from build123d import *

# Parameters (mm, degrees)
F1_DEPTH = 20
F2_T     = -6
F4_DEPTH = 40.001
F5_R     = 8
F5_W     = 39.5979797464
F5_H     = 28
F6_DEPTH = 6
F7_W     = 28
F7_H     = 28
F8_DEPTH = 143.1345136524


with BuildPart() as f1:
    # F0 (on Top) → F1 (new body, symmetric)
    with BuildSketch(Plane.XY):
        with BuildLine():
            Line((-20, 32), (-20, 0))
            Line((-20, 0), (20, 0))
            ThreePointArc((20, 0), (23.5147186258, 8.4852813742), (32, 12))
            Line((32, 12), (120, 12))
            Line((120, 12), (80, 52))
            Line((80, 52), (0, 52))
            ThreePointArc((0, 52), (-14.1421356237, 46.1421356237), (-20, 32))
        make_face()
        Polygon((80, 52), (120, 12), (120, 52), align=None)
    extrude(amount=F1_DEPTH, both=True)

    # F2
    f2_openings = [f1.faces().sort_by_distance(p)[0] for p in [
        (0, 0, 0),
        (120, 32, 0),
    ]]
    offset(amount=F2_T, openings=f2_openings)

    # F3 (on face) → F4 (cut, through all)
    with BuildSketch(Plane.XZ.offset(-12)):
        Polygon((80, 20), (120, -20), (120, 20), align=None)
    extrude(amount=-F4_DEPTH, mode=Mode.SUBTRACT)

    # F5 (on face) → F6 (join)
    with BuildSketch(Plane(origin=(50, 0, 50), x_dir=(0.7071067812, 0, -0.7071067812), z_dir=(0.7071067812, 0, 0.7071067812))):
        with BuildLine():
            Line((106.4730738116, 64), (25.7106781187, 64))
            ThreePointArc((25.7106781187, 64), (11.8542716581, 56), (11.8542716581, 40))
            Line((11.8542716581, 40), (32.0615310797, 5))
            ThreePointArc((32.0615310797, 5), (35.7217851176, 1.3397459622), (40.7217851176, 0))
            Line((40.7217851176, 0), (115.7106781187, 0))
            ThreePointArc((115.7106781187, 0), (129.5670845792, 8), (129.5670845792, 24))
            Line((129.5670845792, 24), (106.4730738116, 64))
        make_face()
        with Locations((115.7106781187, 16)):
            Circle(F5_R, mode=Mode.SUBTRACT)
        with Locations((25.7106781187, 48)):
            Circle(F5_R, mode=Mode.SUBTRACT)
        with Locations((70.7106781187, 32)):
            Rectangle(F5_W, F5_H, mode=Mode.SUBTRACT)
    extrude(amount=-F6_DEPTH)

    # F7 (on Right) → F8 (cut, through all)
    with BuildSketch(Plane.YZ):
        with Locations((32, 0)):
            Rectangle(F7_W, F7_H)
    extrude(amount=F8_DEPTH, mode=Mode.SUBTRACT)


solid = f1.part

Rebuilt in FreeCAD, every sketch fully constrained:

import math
import FreeCAD as App
import Part
import Sketcher

V = App.Vector
Q = App.Units.Quantity


def faces_at(feature, points):
    """Names of the faces that lie closest to the given points."""
    faces = feature.Shape.Faces
    near = lambda p: min(range(len(faces)), key=lambda i: faces[i].distToShape(Part.Vertex(*p))[0])
    return sorted({f"Face{near(p) + 1}" for p in points})


def add_polygon(sketch, points):
    """Adds a closed chain of lines whose ends are joined by coincident constraints."""
    first, n = sketch.GeometryCount, len(points)
    for a, b in zip(points, points[1:] + points[:1]):
        sketch.addGeometry(Part.LineSegment(App.Vector(*a, 0), App.Vector(*b, 0)), False)
    for i in range(n):
        sketch.addConstraint(Sketcher.Constraint("Coincident", first + i, 2, first + (i + 1) % n, 1))

doc = App.newDocument("Part")
body = doc.addObject("PartDesign::Body", "Body")

# Sketch on XY plane
sketch1 = body.newObject("Sketcher::SketchObject", "Sketch")
sketch1.AttachmentSupport = (doc.getObject("XY_Plane"), [""])
sketch1.MapMode = "FlatFace"
sketch1.addGeometry([
    Part.LineSegment(V(-20, 32, 0), V(-20, 0, 0)),  # 0
    Part.LineSegment(V(-20, 0, 0), V(20, 0, 0)),  # 1
    Part.ArcOfCircle(Part.Circle(V(32, 0, 0), V(0, 0, 1), 12), math.radians(90), math.radians(180)),  # 2
    Part.LineSegment(V(32, 12, 0), V(120, 12, 0)),  # 3
    Part.LineSegment(V(120, 12, 0), V(120, 52, 0)),  # 4
    Part.LineSegment(V(120, 52, 0), V(0, 52, 0)),  # 5
    Part.ArcOfCircle(Part.Circle(V(0, 32, 0), V(0, 0, 1), 20), math.radians(90), math.radians(180)),  # 6
], False)
sketch1.addConstraint([
    Sketcher.Constraint("Coincident", 0, 2, 1, 1),
    Sketcher.Constraint("Coincident", 1, 2, 2, 2),
    Sketcher.Constraint("Tangent", 2, 1, 3, 1),
    Sketcher.Constraint("Coincident", 3, 2, 4, 1),
    Sketcher.Constraint("Coincident", 4, 2, 5, 1),
    Sketcher.Constraint("Tangent", 5, 2, 6, 1),
    Sketcher.Constraint("Tangent", 6, 2, 0, 1),
    Sketcher.Constraint("Vertical", 0),
    Sketcher.Constraint("Horizontal", 1),
    Sketcher.Constraint("Horizontal", 3),
    Sketcher.Constraint("Vertical", 4),
    Sketcher.Constraint("Horizontal", 5),
    Sketcher.Constraint("Symmetric", 0, 2, 1, 2, -1, 1),
    Sketcher.Constraint("PointOnObject", 2, 3, -1),
    Sketcher.Constraint("PointOnObject", 6, 3, -2),
    Sketcher.Constraint("Equal", 1, 4),
    Sketcher.Constraint("Radius", 2, Q("12 mm")),
    Sketcher.Constraint("Radius", 6, Q("20 mm")),
    Sketcher.Constraint("DistanceX", 3, 1, 3, 2, Q("88 mm")),
])
pad1 = body.newObject("PartDesign::Pad", "Pad")
pad1.Profile = sketch1
pad1.Length = 40
pad1.Midplane = True
doc.recompute()

thickness = body.newObject("PartDesign::Thickness", "Thickness")
thickness.Base = (pad1, faces_at(pad1, [(0, 0, 0), (120, 32, 0)]))
thickness.Value = 6
thickness.Reversed = True
thickness.Join = "Arc"

# Sketch on XZ plane
sketch2 = body.newObject("Sketcher::SketchObject", "Sketch001")
sketch2.AttachmentSupport = (doc.getObject("XZ_Plane"), [""])
sketch2.MapMode = "FlatFace"
sketch2.AttachmentOffset = App.Placement(V(0, 0, -12), App.Rotation())
add_polygon(sketch2, [(80, 20), (120, -20), (120, 20)])  # lines 0-2
sketch2.addConstraint([
    Sketcher.Constraint("Vertical", 1),
    Sketcher.Constraint("Horizontal", 2),
    Sketcher.Constraint("Equal", 2, 1),
    Sketcher.Constraint("DistanceX", 2, 2, 2, 1, Q("40 mm")),
    Sketcher.Constraint("DistanceX", -1, 1, 0, 2, Q("120 mm")),
    Sketcher.Constraint("DistanceY", 0, 2, -1, 1, Q("20 mm")),
])
pocket1 = body.newObject("PartDesign::Pocket", "Pocket")
pocket1.Profile = sketch2
pocket1.Type = "ThroughAll"

# Sketch on an angled plane
sketch3 = body.newObject("Sketcher::SketchObject", "Sketch002")
sketch3.Placement = App.Placement(V(50, 0, 50), App.Rotation(V(0.707106781, 0, -0.707106781), V(0, 0.999999999, 0), V(0.707106781, 0, 0.707106781), "ZXY"))
sketch3.addGeometry(Part.LineSegment(V(106, 64, 0), V(26, 64, 0)), False)  # 0
sketch3.addGeometry(Part.ArcOfCircle(Part.Circle(V(26, 48, 0), V(0, 0, 1), 16), math.radians(90), math.radians(210)), False)  # 1
sketch3.addGeometry(Part.LineSegment(V(12, 40, 0), V(32, 5, 0)), False)  # 2
sketch3.addGeometry(Part.ArcOfCircle(Part.Circle(V(41, 10, 0), V(0, 0, 1), 10), math.radians(-150), math.radians(-90)), False)  # 3
sketch3.addGeometry(Part.LineSegment(V(41, 0, 0), V(116, 0, 0)), False)  # 4
sketch3.addGeometry(Part.ArcOfCircle(Part.Circle(V(116, 16, 0), V(0, 0, 1), 16), math.radians(-90), math.radians(30)), False)  # 5
sketch3.addGeometry(Part.LineSegment(V(130, 24, 0), V(106, 64, 0)), False)  # 6
sketch3.addGeometry(Part.Circle(V(116, 16, 0), V(0, 0, 1), 8), False)  # 7
sketch3.addGeometry(Part.Circle(V(26, 48, 0), V(0, 0, 1), 8), False)  # 8
add_polygon(sketch3, [(91, 18), (51, 18), (51, 46), (91, 46)])  # lines 9-12
sketch3.addConstraint([
    Sketcher.Constraint("Tangent", 0, 2, 1, 1),
    Sketcher.Constraint("Tangent", 1, 2, 2, 1),
    Sketcher.Constraint("Tangent", 2, 2, 3, 1),
    Sketcher.Constraint("Tangent", 3, 2, 4, 1),
    Sketcher.Constraint("Tangent", 4, 2, 5, 1),
    Sketcher.Constraint("Tangent", 5, 2, 6, 1),
    Sketcher.Constraint("Coincident", 6, 2, 0, 1),
    Sketcher.Constraint("Horizontal", 0),
    Sketcher.Constraint("Horizontal", 4),
    Sketcher.Constraint("Horizontal", 9),
    Sketcher.Constraint("Vertical", 10),
    Sketcher.Constraint("Horizontal", 11),
    Sketcher.Constraint("Vertical", 12),
    Sketcher.Constraint("Coincident", 7, 3, 5, 3),
    Sketcher.Constraint("Coincident", 8, 3, 1, 3),
    Sketcher.Constraint("Equal", 1, 5),
    Sketcher.Constraint("Equal", 7, 8),
    Sketcher.Constraint("PointOnObject", 3, 2, -1),
    Sketcher.Constraint("Parallel", 2, 6),
    Sketcher.Constraint("Diameter", 7, Q("16 mm")),
    Sketcher.Constraint("Radius", 1, Q("16 mm")),
    Sketcher.Constraint("Radius", 3, Q("10 mm")),
    Sketcher.Constraint("DistanceY", 10, 1, 10, 2, Q("28 mm")),
    Sketcher.Constraint("Angle", 2, Q("-60 deg")),
    Sketcher.Constraint("DistanceY", -1, 1, 1, 3, Q("48 mm")),
    Sketcher.Constraint("DistanceY", -1, 1, 9, 2, Q("18 mm")),
    Sketcher.Constraint("DistanceX", 1, 3, 5, 3, Q("90 mm")),
    Sketcher.Constraint("DistanceX", 9, 2, 9, 1, Q("39.59798 mm")),
    Sketcher.Constraint("DistanceX", -1, 1, 1, 3, Q("25.710678 mm")),
    Sketcher.Constraint("DistanceX", -1, 1, 9, 2, Q("50.911688 mm")),
])
pad2 = body.newObject("PartDesign::Pad", "Pad001")
pad2.Profile = sketch3
pad2.Length = 6
pad2.Reversed = True

# Sketch on YZ plane
sketch4 = body.newObject("Sketcher::SketchObject", "Sketch003")
sketch4.AttachmentSupport = (doc.getObject("YZ_Plane"), [""])
sketch4.MapMode = "FlatFace"
add_polygon(sketch4, [(18, 14), (18, -14), (46, -14), (46, 14)])  # lines 0-3
sketch4.addConstraint([
    Sketcher.Constraint("Vertical", 0),
    Sketcher.Constraint("Horizontal", 1),
    Sketcher.Constraint("Vertical", 2),
    Sketcher.Constraint("Horizontal", 3),
    Sketcher.Constraint("Equal", 3, 0),
    Sketcher.Constraint("DistanceX", 1, 1, 1, 2, Q("28 mm")),
    Sketcher.Constraint("DistanceX", -1, 1, 0, 2, Q("18 mm")),
    Sketcher.Constraint("DistanceY", 0, 2, -1, 1, Q("14 mm")),
])
pocket2 = body.newObject("PartDesign::Pocket", "Pocket001")
pocket2.Profile = sketch4
pocket2.Type = "ThroughAll"
pocket2.Reversed = True

doc.recompute()
